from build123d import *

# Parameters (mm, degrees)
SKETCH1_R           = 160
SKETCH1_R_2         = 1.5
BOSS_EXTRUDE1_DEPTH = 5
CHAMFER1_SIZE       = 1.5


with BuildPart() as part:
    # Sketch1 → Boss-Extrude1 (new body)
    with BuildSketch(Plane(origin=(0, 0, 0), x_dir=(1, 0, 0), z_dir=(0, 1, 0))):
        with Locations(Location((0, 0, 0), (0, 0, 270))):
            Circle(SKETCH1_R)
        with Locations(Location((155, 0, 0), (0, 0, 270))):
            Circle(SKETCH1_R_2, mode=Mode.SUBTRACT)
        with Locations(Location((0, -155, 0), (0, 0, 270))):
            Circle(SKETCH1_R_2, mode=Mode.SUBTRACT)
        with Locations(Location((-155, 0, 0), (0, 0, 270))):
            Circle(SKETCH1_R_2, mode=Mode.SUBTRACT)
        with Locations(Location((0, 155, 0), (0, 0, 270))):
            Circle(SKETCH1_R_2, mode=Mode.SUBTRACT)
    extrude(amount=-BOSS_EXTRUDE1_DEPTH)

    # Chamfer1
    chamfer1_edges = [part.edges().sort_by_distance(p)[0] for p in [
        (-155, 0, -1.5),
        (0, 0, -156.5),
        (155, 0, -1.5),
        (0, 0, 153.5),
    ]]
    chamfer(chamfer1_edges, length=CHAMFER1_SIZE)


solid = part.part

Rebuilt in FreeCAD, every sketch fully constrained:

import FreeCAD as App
import Part
import Sketcher
Q = App.Units.Quantity


def edges_at(feature, points):
    """Names of the edges that pass closest to the given points."""
    edges = feature.Shape.Edges
    near = lambda p: min(range(len(edges)), key=lambda i: edges[i].distToShape(Part.Vertex(*p))[0])
    return sorted({f"Edge{near(p) + 1}" for p in points})

doc = App.newDocument("Part")
body = doc.addObject("PartDesign::Body", "Body")

sketch1 = doc.addObject("Sketcher::SketchObject", "Sketch")
body.addObject(sketch1)
sketch1.AttachmentSupport = (doc.XZ_Plane, [""])
sketch1.MapMode = "FlatFace"
sketch1.addGeometry(Part.Circle(App.Vector(0, 0, 0), App.Vector(0, 0, 1), 160), False)
sketch1.addGeometry(Part.Circle(App.Vector(0, -155, 0), App.Vector(0, 0, 1), 1.5), False)
sketch1.addGeometry(Part.Circle(App.Vector(-155, 0, 0), App.Vector(0, 0, 1), 1.5), False)
sketch1.addGeometry(Part.Circle(App.Vector(155, 0, 0), App.Vector(0, 0, 1), 1.5), False)
sketch1.addGeometry(Part.Circle(App.Vector(0, 155, 0), App.Vector(0, 0, 1), 1.5), False)
sketch1.addConstraint(Sketcher.Constraint("Coincident", 0, 3, -1, 1))
sketch1.addConstraint(Sketcher.Constraint("Equal", 1, 2))
sketch1.addConstraint(Sketcher.Constraint("Equal", 2, 3))
sketch1.addConstraint(Sketcher.Constraint("Equal", 3, 4))
sketch1.addConstraint(Sketcher.Constraint("Symmetric", 2, 3, 3, 3, -1, 1))
sketch1.addConstraint(Sketcher.Constraint("Symmetric", 1, 3, 4, 3, -1, 1))
sketch1.addConstraint(Sketcher.Constraint("PointOnObject", 1, 3, -2))
sketch1.addConstraint(Sketcher.Constraint("PointOnObject", 2, 3, -1))
sketch1.addConstraint(Sketcher.Constraint("Diameter", 0, Q("320 mm")))
sketch1.addConstraint(Sketcher.Constraint("Diameter", 1, Q("3 mm")))
sketch1.addConstraint(Sketcher.Constraint("DistanceY", 1, 3, -1, 1, Q("155 mm")))
sketch1.addConstraint(Sketcher.Constraint("DistanceX", 2, 3, -1, 1, Q("155 mm")))
pad1 = doc.addObject("PartDesign::Pad", "Pad")
body.addObject(pad1)
pad1.Profile = sketch1
pad1.Length = 5
doc.recompute()

chamfer = doc.addObject("PartDesign::Chamfer", "Chamfer")
body.addObject(chamfer)
chamfer.Base = (pad1, edges_at(pad1, [
    (-155, 0, -1.5),
    (0, 0, -156.5),
    (155, 0, -1.5),
    (0, 0, 153.5),
]))
chamfer.Size = 1.5

doc.recompute()
